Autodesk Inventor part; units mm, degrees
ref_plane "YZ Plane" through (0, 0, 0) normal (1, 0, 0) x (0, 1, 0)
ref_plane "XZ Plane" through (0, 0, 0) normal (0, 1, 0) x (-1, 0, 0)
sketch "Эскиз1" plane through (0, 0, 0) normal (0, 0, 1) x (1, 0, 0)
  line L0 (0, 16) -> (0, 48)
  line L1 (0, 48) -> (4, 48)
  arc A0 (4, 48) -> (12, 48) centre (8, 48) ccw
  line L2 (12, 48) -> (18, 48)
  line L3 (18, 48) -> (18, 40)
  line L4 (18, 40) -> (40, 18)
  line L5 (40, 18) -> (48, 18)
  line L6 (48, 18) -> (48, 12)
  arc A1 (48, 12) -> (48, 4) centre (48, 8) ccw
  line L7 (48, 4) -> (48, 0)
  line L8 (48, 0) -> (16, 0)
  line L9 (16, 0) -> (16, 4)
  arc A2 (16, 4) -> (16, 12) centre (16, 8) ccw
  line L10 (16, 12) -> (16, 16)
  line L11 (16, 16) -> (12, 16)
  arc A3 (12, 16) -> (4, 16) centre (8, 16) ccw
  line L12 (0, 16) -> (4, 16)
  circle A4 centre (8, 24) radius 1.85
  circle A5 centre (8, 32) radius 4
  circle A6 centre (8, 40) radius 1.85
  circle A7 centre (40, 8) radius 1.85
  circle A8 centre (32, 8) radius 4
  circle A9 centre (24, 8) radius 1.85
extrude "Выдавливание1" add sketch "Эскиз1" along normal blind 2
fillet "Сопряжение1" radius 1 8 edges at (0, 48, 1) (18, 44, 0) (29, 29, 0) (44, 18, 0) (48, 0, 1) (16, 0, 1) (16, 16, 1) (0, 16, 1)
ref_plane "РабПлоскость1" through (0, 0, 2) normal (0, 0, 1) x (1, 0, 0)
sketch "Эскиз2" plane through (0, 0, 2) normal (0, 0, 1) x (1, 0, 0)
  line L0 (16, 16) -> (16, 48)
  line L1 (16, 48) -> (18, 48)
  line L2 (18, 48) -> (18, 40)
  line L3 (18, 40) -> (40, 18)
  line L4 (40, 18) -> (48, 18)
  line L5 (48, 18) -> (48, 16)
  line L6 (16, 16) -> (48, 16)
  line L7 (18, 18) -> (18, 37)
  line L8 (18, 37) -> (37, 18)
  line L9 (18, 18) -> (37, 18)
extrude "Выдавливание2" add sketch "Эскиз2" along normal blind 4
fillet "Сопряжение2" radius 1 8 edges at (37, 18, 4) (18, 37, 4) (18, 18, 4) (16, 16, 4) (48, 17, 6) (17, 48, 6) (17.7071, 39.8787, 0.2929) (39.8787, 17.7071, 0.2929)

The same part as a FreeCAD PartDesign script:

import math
import FreeCAD as App
import Part
import Sketcher

V = App.Vector
Q = App.Units.Quantity


def edges_at(feature, points):
    """Names of the edges that pass closest to the given points."""
    edges = feature.Shape.Edges
    near = lambda p: min(range(len(edges)), key=lambda i: edges[i].distToShape(Part.Vertex(*p))[0])
    return sorted({f"Edge{near(p) + 1}" for p in points})


def add_polygon(sketch, points):
    """Adds a closed chain of lines whose ends are joined by coincident constraints."""
    first, n = sketch.GeometryCount, len(points)
    for a, b in zip(points, points[1:] + points[:1]):
        sketch.addGeometry(Part.LineSegment(App.Vector(*a, 0), App.Vector(*b, 0)), False)
    for i in range(n):
        sketch.addConstraint(Sketcher.Constraint("Coincident", first + i, 2, first + (i + 1) % n, 1))

doc = App.newDocument("Part")
body = doc.addObject("PartDesign::Body", "Body")

# Sketch on XY plane
sketch1 = doc.addObject("Sketcher::SketchObject", "Sketch")
body.addObject(sketch1)
sketch1.AttachmentSupport = (doc.XY_Plane, [""])
sketch1.MapMode = "FlatFace"
sketch1.addGeometry(Part.LineSegment(V(0, 48, 0), V(0, 16, 0)), False)
sketch1.addGeometry(Part.LineSegment(V(0, 16, 0), V(4, 16, 0)), False)
sketch1.addGeometry(Part.ArcOfCircle(Part.Circle(V(8, 16, 0), V(0, 0, 1), 4), math.radians(0), math.radians(180)), False)
sketch1.addGeometry(Part.LineSegment(V(12, 16, 0), V(16, 16, 0)), False)
sketch1.addGeometry(Part.LineSegment(V(16, 16, 0), V(16, 12, 0)), False)
sketch1.addGeometry(Part.ArcOfCircle(Part.Circle(V(16, 8, 0), V(0, 0, 1), 4), math.radians(-90), math.radians(90)), False)
sketch1.addGeometry(Part.LineSegment(V(16, 4, 0), V(16, 0, 0)), False)
sketch1.addGeometry(Part.LineSegment(V(16, 0, 0), V(48, 0, 0)), False)
sketch1.addGeometry(Part.LineSegment(V(48, 0, 0), V(48, 4, 0)), False)
sketch1.addGeometry(Part.ArcOfCircle(Part.Circle(V(48, 8, 0), V(0, 0, 1), 4), math.radians(90), math.radians(270)), False)
sketch1.addGeometry(Part.LineSegment(V(48, 12, 0), V(48, 18, 0)), False)
sketch1.addGeometry(Part.LineSegment(V(48, 18, 0), V(40, 18, 0)), False)
sketch1.addGeometry(Part.LineSegment(V(40, 18, 0), V(18, 40, 0)), False)
sketch1.addGeometry(Part.LineSegment(V(18, 40, 0), V(18, 48, 0)), False)
sketch1.addGeometry(Part.LineSegment(V(18, 48, 0), V(12, 48, 0)), False)
sketch1.addGeometry(Part.ArcOfCircle(Part.Circle(V(8, 48, 0), V(0, 0, 1), 4), math.radians(180), math.radians(360)), False)
sketch1.addGeometry(Part.LineSegment(V(4, 48, 0), V(0, 48, 0)), False)
sketch1.addGeometry(Part.Circle(V(24, 8, 0), V(0, 0, 1), 1.85), False)
sketch1.addGeometry(Part.Circle(V(32, 8, 0), V(0, 0, 1), 4), False)
sketch1.addGeometry(Part.Circle(V(40, 8, 0), V(0, 0, 1), 1.85), False)
sketch1.addGeometry(Part.Circle(V(8, 24, 0), V(0, 0, 1), 1.85), False)
sketch1.addGeometry(Part.Circle(V(8, 32, 0), V(0, 0, 1), 4), False)
sketch1.addGeometry(Part.Circle(V(8, 40, 0), V(0, 0, 1), 1.85), False)
sketch1.addConstraint(Sketcher.Constraint("Coincident", 0, 2, 1, 1))
sketch1.addConstraint(Sketcher.Constraint("Coincident", 1, 2, 2, 2))
sketch1.addConstraint(Sketcher.Constraint("Coincident", 2, 1, 3, 1))
sketch1.addConstraint(Sketcher.Constraint("Coincident", 3, 2, 4, 1))
sketch1.addConstraint(Sketcher.Constraint("Coincident", 4, 2, 5, 2))
sketch1.addConstraint(Sketcher.Constraint("Coincident", 5, 1, 6, 1))
sketch1.addConstraint(Sketcher.Constraint("Coincident", 6, 2, 7, 1))
sketch1.addConstraint(Sketcher.Constraint("Coincident", 7, 2, 8, 1))
sketch1.addConstraint(Sketcher.Constraint("Coincident", 8, 2, 9, 2))
sketch1.addConstraint(Sketcher.Constraint("Coincident", 9, 1, 10, 1))
sketch1.addConstraint(Sketcher.Constraint("Coincident", 10, 2, 11, 1))
sketch1.addConstraint(Sketcher.Constraint("Coincident", 11, 2, 12, 1))
sketch1.addConstraint(Sketcher.Constraint("Coincident", 12, 2, 13, 1))
sketch1.addConstraint(Sketcher.Constraint("Coincident", 13, 2, 14, 1))
sketch1.addConstraint(Sketcher.Constraint("Coincident", 14, 2, 15, 2))
sketch1.addConstraint(Sketcher.Constraint("Coincident", 15, 1, 16, 1))
sketch1.addConstraint(Sketcher.Constraint("Coincident", 16, 2, 0, 1))
sketch1.addConstraint(Sketcher.Constraint("Vertical", 0))
sketch1.addConstraint(Sketcher.Constraint("Horizontal", 1))
sketch1.addConstraint(Sketcher.Constraint("Horizontal", 3))
sketch1.addConstraint(Sketcher.Constraint("Vertical", 4))
sketch1.addConstraint(Sketcher.Constraint("Vertical", 6))
sketch1.addConstraint(Sketcher.Constraint("Horizontal", 7))
sketch1.addConstraint(Sketcher.Constraint("Vertical", 8))
sketch1.addConstraint(Sketcher.Constraint("Vertical", 10))
sketch1.addConstraint(Sketcher.Constraint("Horizontal", 11))
sketch1.addConstraint(Sketcher.Constraint("Vertical", 13))
sketch1.addConstraint(Sketcher.Constraint("Horizontal", 14))
sketch1.addConstraint(Sketcher.Constraint("Horizontal", 16))
sketch1.addConstraint(Sketcher.Constraint("Equal", 2, 5))
sketch1.addConstraint(Sketcher.Constraint("Equal", 5, 9))
sketch1.addConstraint(Sketcher.Constraint("Equal", 9, 15))
sketch1.addConstraint(Sketcher.Constraint("Equal", 15, 18))
sketch1.addConstraint(Sketcher.Constraint("Equal", 17, 19))
sketch1.addConstraint(Sketcher.Constraint("Equal", 19, 20))
sketch1.addConstraint(Sketcher.Constraint("Equal", 18, 21))
sketch1.addConstraint(Sketcher.Constraint("Equal", 20, 22))
sketch1.addConstraint(Sketcher.Constraint("PointOnObject", 0, 2, -2))
sketch1.addConstraint(Sketcher.Constraint("PointOnObject", 6, 2, -1))
sketch1.addConstraint(Sketcher.Constraint("Horizontal", 5, 3, 9, 3))
sketch1.addConstraint(Sketcher.Constraint("Horizontal", 9, 3, 17, 3))
sketch1.addConstraint(Sketcher.Constraint("Horizontal", 17, 3, 18, 3))
sketch1.addConstraint(Sketcher.Constraint("Horizontal", 18, 3, 19, 3))
sketch1.addConstraint(Sketcher.Constraint("Horizontal", 2, 3, 0, 2))
sketch1.addConstraint(Sketcher.Constraint("Horizontal", 1, 2, 2, 1))
sketch1.addConstraint(Sketcher.Constraint("Horizontal", 22, 3, 12, 2))
sketch1.addConstraint(Sketcher.Constraint("Horizontal", 15, 3, 13, 2))
sketch1.addConstraint(Sketcher.Constraint("Horizontal", 14, 2, 15, 1))
sketch1.addConstraint(Sketcher.Constraint("Vertical", 2, 3, 15, 3))
sketch1.addConstraint(Sketcher.Constraint("Vertical", 15, 3, 20, 3))
sketch1.addConstraint(Sketcher.Constraint("Vertical", 20, 3, 21, 3))
sketch1.addConstraint(Sketcher.Constraint("Vertical", 21, 3, 22, 3))
sketch1.addConstraint(Sketcher.Constraint("Vertical", 5, 3, 3, 2))
sketch1.addConstraint(Sketcher.Constraint("Vertical", 4, 2, 5, 1))
sketch1.addConstraint(Sketcher.Constraint("Vertical", 9, 3, 7, 2))
sketch1.addConstraint(Sketcher.Constraint("Vertical", 8, 2, 9, 1))
sketch1.addConstraint(Sketcher.Constraint("Vertical", 19, 3, 11, 2))
sketch1.addConstraint(Sketcher.Constraint("Equal", 1, 3))
sketch1.addConstraint(Sketcher.Constraint("Equal", 7, 0))
sketch1.addConstraint(Sketcher.Constraint("Equal", 16, 4))
sketch1.addConstraint(Sketcher.Constraint("Equal", 4, 6))
sketch1.addConstraint(Sketcher.Constraint("Equal", 14, 10))
sketch1.addConstraint(Sketcher.Constraint("Equal", 11, 13))
sketch1.addConstraint(Sketcher.Constraint("Diameter", 18, Q("8 mm")))
sketch1.addConstraint(Sketcher.Constraint("Diameter", 17, Q("3.7 mm")))
sketch1.addConstraint(Sketcher.Constraint("DistanceX", 1, 1, 1, 2, Q("4 mm")))
sketch1.addConstraint(Sketcher.Constraint("DistanceX", 7, 1, 7, 2, Q("32 mm")))
sketch1.addConstraint(Sketcher.Constraint("DistanceX", 11, 2, 11, 1, Q("8 mm")))
sketch1.addConstraint(Sketcher.Constraint("DistanceX", 14, 2, 14, 1, Q("6 mm")))
sketch1.addConstraint(Sketcher.Constraint("DistanceX", -1, 1, 17, 3, Q("24 mm")))
sketch1.addConstraint(Sketcher.Constraint("DistanceX", -1, 1, 18, 3, Q("32 mm")))
sketch1.addConstraint(Sketcher.Constraint("DistanceY", -1, 1, 20, 3, Q("24 mm")))
sketch1.addConstraint(Sketcher.Constraint("DistanceY", -1, 1, 21, 3, Q("32 mm")))
pad1 = doc.addObject("PartDesign::Pad", "Pad")
body.addObject(pad1)
pad1.Profile = sketch1
pad1.Length = 2
doc.recompute()

fillet = doc.addObject("PartDesign::Fillet", "Fillet")
body.addObject(fillet)
fillet.Base = (pad1, edges_at(pad1, [
    (0, 48, 1),
    (18, 44, 0),
    (29, 29, 0),
    (44, 18, 0),
    (48, 0, 1),
    (16, 0, 1),
    (16, 16, 1),
    (0, 16, 1),
]))
fillet.Radius = 1

# Sketch on XY plane
sketch2 = doc.addObject("Sketcher::SketchObject", "Sketch001")
body.addObject(sketch2)
sketch2.AttachmentSupport = (doc.XY_Plane, [""])
sketch2.MapMode = "FlatFace"
sketch2.AttachmentOffset = App.Placement(V(0, 0, 2), App.Rotation())
add_polygon(sketch2, [(16, 48), (16, 16), (48, 16), (48, 18), (40, 18), (18, 40), (18, 48)])  # lines 0-6
add_polygon(sketch2, [(37, 18), (18, 18), (18, 37)])  # lines 7-9
sketch2.addConstraint(Sketcher.Constraint("Vertical", 0))
sketch2.addConstraint(Sketcher.Constraint("Horizontal", 1))
sketch2.addConstraint(Sketcher.Constraint("Vertical", 2))
sketch2.addConstraint(Sketcher.Constraint("Horizontal", 3))
sketch2.addConstraint(Sketcher.Constraint("Vertical", 5))
sketch2.addConstraint(Sketcher.Constraint("Horizontal", 6))
sketch2.addConstraint(Sketcher.Constraint("Horizontal", 7))
sketch2.addConstraint(Sketcher.Constraint("Vertical", 8))
sketch2.addConstraint(Sketcher.Constraint("Parallel", 4, 9))
sketch2.addConstraint(Sketcher.Constraint("Horizontal", 3, 2, 7, 2))
sketch2.addConstraint(Sketcher.Constraint("Vertical", 5, 2, 7, 2))
sketch2.addConstraint(Sketcher.Constraint("Equal", 1, 0))
sketch2.addConstraint(Sketcher.Constraint("Equal", 6, 2))
sketch2.addConstraint(Sketcher.Constraint("Equal", 3, 5))
sketch2.addConstraint(Sketcher.Constraint("DistanceX", 1, 1, 1, 2, Q("32 mm")))
sketch2.addConstraint(Sketcher.Constraint("DistanceX", 3, 2, 3, 1, Q("8 mm")))
sketch2.addConstraint(Sketcher.Constraint("DistanceX", 6, 2, 6, 1, Q("2 mm")))
sketch2.addConstraint(Sketcher.Constraint("DistanceX", 7, 2, 7, 1, Q("19 mm")))
sketch2.addConstraint(Sketcher.Constraint("DistanceX", -1, 1, 0, 2, Q("16 mm")))
sketch2.addConstraint(Sketcher.Constraint("DistanceY", -1, 1, 0, 2, Q("16 mm")))
pad2 = doc.addObject("PartDesign::Pad", "Pad001")
body.addObject(pad2)
pad2.Profile = sketch2
pad2.Length = 4
doc.recompute()

fillet2 = doc.addObject("PartDesign::Fillet", "Fillet001")
body.addObject(fillet2)
fillet2.Base = (pad2, edges_at(pad2, [
    (37, 18, 4),
    (18, 37, 4),
    (18, 18, 4),
    (16, 16, 4),
    (48, 17, 6),
    (17, 48, 6),
    (17.707, 39.879, 0.293),
    (39.879, 17.707, 0.293),
]))
fillet2.Radius = 1

doc.recompute()
